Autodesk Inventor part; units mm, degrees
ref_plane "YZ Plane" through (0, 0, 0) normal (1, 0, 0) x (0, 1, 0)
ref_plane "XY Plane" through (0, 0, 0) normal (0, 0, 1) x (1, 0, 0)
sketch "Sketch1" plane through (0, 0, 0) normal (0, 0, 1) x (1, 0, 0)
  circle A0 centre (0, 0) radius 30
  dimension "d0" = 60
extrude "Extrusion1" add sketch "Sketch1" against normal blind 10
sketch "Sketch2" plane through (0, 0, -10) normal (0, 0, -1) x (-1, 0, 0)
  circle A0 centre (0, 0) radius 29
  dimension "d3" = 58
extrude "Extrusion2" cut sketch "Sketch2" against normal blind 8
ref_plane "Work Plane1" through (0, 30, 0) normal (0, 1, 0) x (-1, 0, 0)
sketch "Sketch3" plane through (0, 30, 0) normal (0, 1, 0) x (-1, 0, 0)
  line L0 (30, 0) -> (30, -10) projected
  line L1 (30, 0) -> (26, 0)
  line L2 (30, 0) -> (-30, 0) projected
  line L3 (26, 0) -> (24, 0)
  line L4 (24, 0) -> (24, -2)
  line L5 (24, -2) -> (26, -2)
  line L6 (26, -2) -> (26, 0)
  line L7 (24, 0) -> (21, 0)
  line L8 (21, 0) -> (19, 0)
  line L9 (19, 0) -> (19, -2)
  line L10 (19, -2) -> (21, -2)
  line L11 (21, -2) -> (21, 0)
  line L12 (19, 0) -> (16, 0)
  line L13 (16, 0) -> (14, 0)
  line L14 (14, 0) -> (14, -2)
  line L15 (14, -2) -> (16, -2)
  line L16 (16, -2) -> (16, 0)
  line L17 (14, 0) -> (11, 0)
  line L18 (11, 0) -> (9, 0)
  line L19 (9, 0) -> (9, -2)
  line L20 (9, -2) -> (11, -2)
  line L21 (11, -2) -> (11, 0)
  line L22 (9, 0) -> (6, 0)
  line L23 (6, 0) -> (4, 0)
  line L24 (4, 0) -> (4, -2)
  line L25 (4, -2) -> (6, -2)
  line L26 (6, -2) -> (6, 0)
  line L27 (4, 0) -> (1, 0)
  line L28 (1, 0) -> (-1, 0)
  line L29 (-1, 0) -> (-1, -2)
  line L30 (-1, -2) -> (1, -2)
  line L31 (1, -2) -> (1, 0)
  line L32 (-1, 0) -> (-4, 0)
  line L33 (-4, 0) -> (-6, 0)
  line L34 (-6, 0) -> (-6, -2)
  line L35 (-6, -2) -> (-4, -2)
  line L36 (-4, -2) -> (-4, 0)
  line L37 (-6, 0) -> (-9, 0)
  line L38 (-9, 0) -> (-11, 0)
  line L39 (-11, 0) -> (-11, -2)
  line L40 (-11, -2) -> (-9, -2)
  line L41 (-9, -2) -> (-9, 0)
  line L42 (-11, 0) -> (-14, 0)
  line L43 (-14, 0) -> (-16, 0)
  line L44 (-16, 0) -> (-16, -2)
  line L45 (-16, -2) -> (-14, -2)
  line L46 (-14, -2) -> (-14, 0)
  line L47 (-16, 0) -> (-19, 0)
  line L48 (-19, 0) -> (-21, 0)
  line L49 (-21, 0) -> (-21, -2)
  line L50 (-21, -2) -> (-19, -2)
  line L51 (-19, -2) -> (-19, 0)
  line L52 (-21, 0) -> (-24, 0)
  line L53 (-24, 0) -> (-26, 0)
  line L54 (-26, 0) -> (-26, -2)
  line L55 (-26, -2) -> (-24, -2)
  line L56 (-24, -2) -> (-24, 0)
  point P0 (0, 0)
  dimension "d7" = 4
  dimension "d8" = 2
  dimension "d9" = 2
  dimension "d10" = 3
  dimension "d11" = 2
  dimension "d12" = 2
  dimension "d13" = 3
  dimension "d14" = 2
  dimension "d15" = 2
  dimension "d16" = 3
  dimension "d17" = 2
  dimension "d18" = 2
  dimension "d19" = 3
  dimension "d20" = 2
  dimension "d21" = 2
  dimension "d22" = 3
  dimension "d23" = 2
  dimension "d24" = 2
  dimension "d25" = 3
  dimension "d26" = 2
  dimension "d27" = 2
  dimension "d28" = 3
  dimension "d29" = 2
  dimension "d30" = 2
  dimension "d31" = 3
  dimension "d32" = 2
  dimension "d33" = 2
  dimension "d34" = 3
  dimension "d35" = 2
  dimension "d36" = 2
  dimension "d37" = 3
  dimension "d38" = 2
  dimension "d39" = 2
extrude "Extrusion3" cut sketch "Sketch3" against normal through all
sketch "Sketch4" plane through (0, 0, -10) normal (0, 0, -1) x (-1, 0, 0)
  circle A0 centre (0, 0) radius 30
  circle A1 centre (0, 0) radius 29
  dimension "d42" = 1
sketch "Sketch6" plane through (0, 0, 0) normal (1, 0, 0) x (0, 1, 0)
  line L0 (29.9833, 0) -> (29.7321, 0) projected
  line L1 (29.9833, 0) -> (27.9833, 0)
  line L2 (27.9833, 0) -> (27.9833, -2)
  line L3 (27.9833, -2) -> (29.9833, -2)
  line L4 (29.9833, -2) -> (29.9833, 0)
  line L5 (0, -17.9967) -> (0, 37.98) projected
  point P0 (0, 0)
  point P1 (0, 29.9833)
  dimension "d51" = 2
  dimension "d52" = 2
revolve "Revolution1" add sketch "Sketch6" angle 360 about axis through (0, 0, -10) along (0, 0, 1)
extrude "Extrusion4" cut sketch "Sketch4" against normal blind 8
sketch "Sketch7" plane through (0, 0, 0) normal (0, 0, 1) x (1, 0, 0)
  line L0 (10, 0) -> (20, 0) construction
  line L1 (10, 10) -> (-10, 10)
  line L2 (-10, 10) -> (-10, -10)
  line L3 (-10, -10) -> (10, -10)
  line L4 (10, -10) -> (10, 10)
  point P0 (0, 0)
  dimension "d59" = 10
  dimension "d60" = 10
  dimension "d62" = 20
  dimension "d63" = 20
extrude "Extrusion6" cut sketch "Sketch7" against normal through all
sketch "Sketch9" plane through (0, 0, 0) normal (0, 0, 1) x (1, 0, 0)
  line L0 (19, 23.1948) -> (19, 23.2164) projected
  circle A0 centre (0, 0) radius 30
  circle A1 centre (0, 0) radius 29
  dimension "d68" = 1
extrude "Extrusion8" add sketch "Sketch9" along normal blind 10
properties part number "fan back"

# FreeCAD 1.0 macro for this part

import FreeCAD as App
import Part
import Sketcher

V = App.Vector


def add_polygon(sketch, points):
    """Adds a closed chain of lines whose ends are joined by coincident constraints."""
    first, n = sketch.GeometryCount, len(points)
    for a, b in zip(points, points[1:] + points[:1]):
        sketch.addGeometry(Part.LineSegment(App.Vector(*a, 0), App.Vector(*b, 0)), False)
    for i in range(n):
        sketch.addConstraint(Sketcher.Constraint("Coincident", first + i, 2, first + (i + 1) % n, 1))

doc = App.newDocument("Part")
body = doc.addObject("PartDesign::Body", "Body")

sketch1 = body.newObject("Sketcher::SketchObject", "Sketch")
sketch1.AttachmentSupport = (doc.getObject("XY_Plane"), [""])
sketch1.MapMode = "FlatFace"
sketch1.addGeometry(Part.Circle(V(0, 0, 0), V(0, 0, 1), 30), False)
sketch1.addConstraint([
    Sketcher.Constraint("Coincident", 0, 3, -1, 1),
    Sketcher.Constraint("Diameter", 0, 60.0),
])
pad1 = body.newObject("PartDesign::Pad", "Pad")
pad1.Profile = sketch1
pad1.Length = 10
pad1.Reversed = True

sketch2 = body.newObject("Sketcher::SketchObject", "Sketch001")
sketch2.AttachmentSupport = (doc.getObject("XY_Plane"), [""])
sketch2.MapMode = "FlatFace"
sketch2.AttachmentOffset = App.Placement(V(0, 0, -10), App.Rotation())
sketch2.addGeometry(Part.Circle(V(0, 0, 0), V(0, 0, 1), 29), False)
sketch2.addConstraint([
    Sketcher.Constraint("Coincident", 0, 3, -1, 1),
    Sketcher.Constraint("Diameter", 0, 58.0),
])
pocket1 = body.newObject("PartDesign::Pocket", "Pocket")
pocket1.Profile = sketch2
pocket1.Length = 8
pocket1.Reversed = True

sketch3 = body.newObject("Sketcher::SketchObject", "Sketch002")
sketch3.AttachmentSupport = (doc.getObject("XZ_Plane"), [""])
sketch3.MapMode = "FlatFace"
sketch3.AttachmentOffset = App.Placement(V(0, 0, -30), App.Rotation())
add_polygon(sketch3, [(-26, -2), (-26, 0), (-24, 0), (-24, -2)])
add_polygon(sketch3, [(24, -2), (24, 0), (26, 0), (26, -2)])
add_polygon(sketch3, [(19, -2), (19, 0), (21, 0), (21, -2)])
add_polygon(sketch3, [(14, -2), (14, 0), (16, 0), (16, -2)])
add_polygon(sketch3, [(9, -2), (9, 0), (11, 0), (11, -2)])
add_polygon(sketch3, [(4, -2), (4, 0), (6, 0), (6, -2)])
add_polygon(sketch3, [(-1, -2), (-1, 0), (1, 0), (1, -2)])
add_polygon(sketch3, [(-6, -2), (-6, 0), (-4, 0), (-4, -2)])
add_polygon(sketch3, [(-11, -2), (-11, 0), (-9, 0), (-9, -2)])
add_polygon(sketch3, [(-16, -2), (-16, 0), (-14, 0), (-14, -2)])
add_polygon(sketch3, [(-21, -2), (-21, 0), (-19, 0), (-19, -2)])
sketch3.addConstraint([
    Sketcher.Constraint("Vertical", 0),
    Sketcher.Constraint("Horizontal", 1),
    Sketcher.Constraint("Vertical", 2),
    Sketcher.Constraint("Horizontal", 3),
    Sketcher.Constraint("Vertical", 4),
    Sketcher.Constraint("Horizontal", 5),
    Sketcher.Constraint("Vertical", 6),
    Sketcher.Constraint("Horizontal", 7),
    Sketcher.Constraint("Vertical", 8),
    Sketcher.Constraint("Horizontal", 9),
    Sketcher.Constraint("Vertical", 10),
    Sketcher.Constraint("Horizontal", 11),
    Sketcher.Constraint("Vertical", 12),
    Sketcher.Constraint("Horizontal", 13),
    Sketcher.Constraint("Vertical", 14),
    Sketcher.Constraint("Horizontal", 15),
    Sketcher.Constraint("Vertical", 16),
    Sketcher.Constraint("Horizontal", 17),
    Sketcher.Constraint("Vertical", 18),
    Sketcher.Constraint("Horizontal", 19),
    Sketcher.Constraint("Vertical", 20),
    Sketcher.Constraint("Horizontal", 21),
    Sketcher.Constraint("Vertical", 22),
    Sketcher.Constraint("Horizontal", 23),
    Sketcher.Constraint("Vertical", 24),
    Sketcher.Constraint("Horizontal", 25),
    Sketcher.Constraint("Vertical", 26),
    Sketcher.Constraint("Horizontal", 27),
    Sketcher.Constraint("Vertical", 28),
    Sketcher.Constraint("Horizontal", 29),
    Sketcher.Constraint("Vertical", 30),
    Sketcher.Constraint("Horizontal", 31),
    Sketcher.Constraint("Vertical", 32),
    Sketcher.Constraint("Horizontal", 33),
    Sketcher.Constraint("Vertical", 34),
    Sketcher.Constraint("Horizontal", 35),
    Sketcher.Constraint("Vertical", 36),
    Sketcher.Constraint("Horizontal", 37),
    Sketcher.Constraint("Vertical", 38),
    Sketcher.Constraint("Horizontal", 39),
    Sketcher.Constraint("Vertical", 40),
    Sketcher.Constraint("Horizontal", 41),
    Sketcher.Constraint("Vertical", 42),
    Sketcher.Constraint("Horizontal", 43),
    Sketcher.Constraint("Symmetric", 1, 2, 4, 2, -1, 1),
    Sketcher.Constraint("Symmetric", 24, 2, 25, 2, -1, 1),
    Sketcher.Constraint("Symmetric", 21, 2, 28, 2, -1, 1),
    Sketcher.Constraint("Symmetric", 17, 2, 32, 2, -1, 1),
    Sketcher.Constraint("Symmetric", 13, 2, 36, 2, -1, 1),
    Sketcher.Constraint("Symmetric", 9, 2, 40, 2, -1, 1),
    Sketcher.Constraint("Symmetric", 0, 2, 5, 2, -2),
    Sketcher.Constraint("Symmetric", 20, 2, 29, 2, -2),
    Sketcher.Constraint("Symmetric", 16, 2, 33, 2, -2),
    Sketcher.Constraint("Symmetric", 12, 2, 37, 2, -2),
    Sketcher.Constraint("Symmetric", 8, 2, 41, 2, -2),
    Sketcher.Constraint("Horizontal", 3, 2, 6, 2),
    Sketcher.Constraint("Horizontal", 7, 2, 10, 2),
    Sketcher.Constraint("Horizontal", 11, 2, 14, 2),
    Sketcher.Constraint("Horizontal", 15, 2, 18, 2),
    Sketcher.Constraint("Horizontal", 19, 2, 22, 2),
    Sketcher.Constraint("Horizontal", 23, 2, 26, 2),
    Sketcher.Constraint("Horizontal", 27, 2, 30, 2),
    Sketcher.Constraint("Horizontal", 31, 2, 34, 2),
    Sketcher.Constraint("Horizontal", 35, 2, 38, 2),
    Sketcher.Constraint("Horizontal", 39, 2, 42, 2),
    Sketcher.Constraint("Equal", 7, 9),
    Sketcher.Constraint("Equal", 11, 13),
    Sketcher.Constraint("Equal", 15, 17),
    Sketcher.Constraint("Equal", 19, 21),
    Sketcher.Constraint("Equal", 23, 25),
    Sketcher.Constraint("Equal", 43, 0),
    Sketcher.Constraint("DistanceX", 1, 1, 1, 2, 2.0),
    Sketcher.Constraint("DistanceX", -1, 1, 20, 2, 4.0),
    Sketcher.Constraint("DistanceX", 9, 2, 4, 2, 3.0),
    Sketcher.Constraint("DistanceX", 13, 2, 8, 2, 3.0),
    Sketcher.Constraint("DistanceX", 17, 2, 12, 2, 3.0),
    Sketcher.Constraint("DistanceX", 21, 2, 16, 2, 3.0),
])
pocket2 = body.newObject("PartDesign::Pocket", "Pocket001")
pocket2.Profile = sketch3
pocket2.Type = "ThroughAll"
pocket2.Reversed = True

sketch4 = body.newObject("Sketcher::SketchObject", "Sketch003")
sketch4.AttachmentSupport = (doc.getObject("YZ_Plane"), [""])
sketch4.MapMode = "FlatFace"
add_polygon(sketch4, [(29.9833, -2), (29.9833, 0), (27.9833, 0), (27.9833, -2)])
sketch4.addConstraint([
    Sketcher.Constraint("Vertical", 0),
    Sketcher.Constraint("Horizontal", 1),
    Sketcher.Constraint("Vertical", 2),
    Sketcher.Constraint("Horizontal", 3),
    Sketcher.Constraint("PointOnObject", 0, 2, -1),
    Sketcher.Constraint("Equal", 3, 0),
    Sketcher.Constraint("DistanceX", 1, 2, 1, 1, 2.0),
    Sketcher.Constraint("DistanceX", -1, 1, 0, 2, 29.9833),
])
revolution = body.newObject("PartDesign::Revolution", "Revolution")
revolution.Profile = sketch4
revolution.ReferenceAxis = (sketch4, ["V_Axis"])
revolution.Angle = 360

sketch5 = body.newObject("Sketcher::SketchObject", "Sketch004")
sketch5.AttachmentSupport = (doc.getObject("XY_Plane"), [""])
sketch5.MapMode = "FlatFace"
sketch5.AttachmentOffset = App.Placement(V(0, 0, -10), App.Rotation())
sketch5.addGeometry([
    Part.Circle(V(0, 0, 0), V(0, 0, 1), 30),
    Part.Circle(V(0, 0, 0), V(0, 0, 1), 29),
], False)
sketch5.addConstraint([
    Sketcher.Constraint("Coincident", 0, 3, -1, 1),
    Sketcher.Constraint("Coincident", 1, 3, -1, 1),
    Sketcher.Constraint("Diameter", 0, 60.0),
    Sketcher.Constraint("Diameter", 1, 58.0),
])
pocket3 = body.newObject("PartDesign::Pocket", "Pocket002")
pocket3.Profile = sketch5
pocket3.Length = 8
pocket3.Reversed = True

sketch6 = body.newObject("Sketcher::SketchObject", "Sketch005")
sketch6.AttachmentSupport = (doc.getObject("XY_Plane"), [""])
sketch6.MapMode = "FlatFace"
add_polygon(sketch6, [(10, -10), (10, 10), (-10, 10), (-10, -10)])
sketch6.addConstraint([
    Sketcher.Constraint("Vertical", 0),
    Sketcher.Constraint("Horizontal", 1),
    Sketcher.Constraint("Vertical", 2),
    Sketcher.Constraint("Horizontal", 3),
    Sketcher.Constraint("Symmetric", 0, 2, 2, 2, -1, 1),
    Sketcher.Constraint("Equal", 3, 0),
    Sketcher.Constraint("DistanceX", 1, 2, 1, 1, 20.0),
])
pocket4 = body.newObject("PartDesign::Pocket", "Pocket003")
pocket4.Profile = sketch6
pocket4.Type = "ThroughAll"

sketch7 = body.newObject("Sketcher::SketchObject", "Sketch006")
sketch7.AttachmentSupport = (doc.getObject("XY_Plane"), [""])
sketch7.MapMode = "FlatFace"
sketch7.addGeometry([
    Part.Circle(V(0, 0, 0), V(0, 0, 1), 30),
    Part.Circle(V(0, 0, 0), V(0, 0, 1), 29),
], False)
sketch7.addConstraint([
    Sketcher.Constraint("Coincident", 0, 3, -1, 1),
    Sketcher.Constraint("Coincident", 1, 3, -1, 1),
    Sketcher.Constraint("Diameter", 0, 60.0),
    Sketcher.Constraint("Diameter", 1, 58.0),
])
pad2 = body.newObject("PartDesign::Pad", "Pad001")
pad2.Profile = sketch7
pad2.Length = 10

doc.recompute()
